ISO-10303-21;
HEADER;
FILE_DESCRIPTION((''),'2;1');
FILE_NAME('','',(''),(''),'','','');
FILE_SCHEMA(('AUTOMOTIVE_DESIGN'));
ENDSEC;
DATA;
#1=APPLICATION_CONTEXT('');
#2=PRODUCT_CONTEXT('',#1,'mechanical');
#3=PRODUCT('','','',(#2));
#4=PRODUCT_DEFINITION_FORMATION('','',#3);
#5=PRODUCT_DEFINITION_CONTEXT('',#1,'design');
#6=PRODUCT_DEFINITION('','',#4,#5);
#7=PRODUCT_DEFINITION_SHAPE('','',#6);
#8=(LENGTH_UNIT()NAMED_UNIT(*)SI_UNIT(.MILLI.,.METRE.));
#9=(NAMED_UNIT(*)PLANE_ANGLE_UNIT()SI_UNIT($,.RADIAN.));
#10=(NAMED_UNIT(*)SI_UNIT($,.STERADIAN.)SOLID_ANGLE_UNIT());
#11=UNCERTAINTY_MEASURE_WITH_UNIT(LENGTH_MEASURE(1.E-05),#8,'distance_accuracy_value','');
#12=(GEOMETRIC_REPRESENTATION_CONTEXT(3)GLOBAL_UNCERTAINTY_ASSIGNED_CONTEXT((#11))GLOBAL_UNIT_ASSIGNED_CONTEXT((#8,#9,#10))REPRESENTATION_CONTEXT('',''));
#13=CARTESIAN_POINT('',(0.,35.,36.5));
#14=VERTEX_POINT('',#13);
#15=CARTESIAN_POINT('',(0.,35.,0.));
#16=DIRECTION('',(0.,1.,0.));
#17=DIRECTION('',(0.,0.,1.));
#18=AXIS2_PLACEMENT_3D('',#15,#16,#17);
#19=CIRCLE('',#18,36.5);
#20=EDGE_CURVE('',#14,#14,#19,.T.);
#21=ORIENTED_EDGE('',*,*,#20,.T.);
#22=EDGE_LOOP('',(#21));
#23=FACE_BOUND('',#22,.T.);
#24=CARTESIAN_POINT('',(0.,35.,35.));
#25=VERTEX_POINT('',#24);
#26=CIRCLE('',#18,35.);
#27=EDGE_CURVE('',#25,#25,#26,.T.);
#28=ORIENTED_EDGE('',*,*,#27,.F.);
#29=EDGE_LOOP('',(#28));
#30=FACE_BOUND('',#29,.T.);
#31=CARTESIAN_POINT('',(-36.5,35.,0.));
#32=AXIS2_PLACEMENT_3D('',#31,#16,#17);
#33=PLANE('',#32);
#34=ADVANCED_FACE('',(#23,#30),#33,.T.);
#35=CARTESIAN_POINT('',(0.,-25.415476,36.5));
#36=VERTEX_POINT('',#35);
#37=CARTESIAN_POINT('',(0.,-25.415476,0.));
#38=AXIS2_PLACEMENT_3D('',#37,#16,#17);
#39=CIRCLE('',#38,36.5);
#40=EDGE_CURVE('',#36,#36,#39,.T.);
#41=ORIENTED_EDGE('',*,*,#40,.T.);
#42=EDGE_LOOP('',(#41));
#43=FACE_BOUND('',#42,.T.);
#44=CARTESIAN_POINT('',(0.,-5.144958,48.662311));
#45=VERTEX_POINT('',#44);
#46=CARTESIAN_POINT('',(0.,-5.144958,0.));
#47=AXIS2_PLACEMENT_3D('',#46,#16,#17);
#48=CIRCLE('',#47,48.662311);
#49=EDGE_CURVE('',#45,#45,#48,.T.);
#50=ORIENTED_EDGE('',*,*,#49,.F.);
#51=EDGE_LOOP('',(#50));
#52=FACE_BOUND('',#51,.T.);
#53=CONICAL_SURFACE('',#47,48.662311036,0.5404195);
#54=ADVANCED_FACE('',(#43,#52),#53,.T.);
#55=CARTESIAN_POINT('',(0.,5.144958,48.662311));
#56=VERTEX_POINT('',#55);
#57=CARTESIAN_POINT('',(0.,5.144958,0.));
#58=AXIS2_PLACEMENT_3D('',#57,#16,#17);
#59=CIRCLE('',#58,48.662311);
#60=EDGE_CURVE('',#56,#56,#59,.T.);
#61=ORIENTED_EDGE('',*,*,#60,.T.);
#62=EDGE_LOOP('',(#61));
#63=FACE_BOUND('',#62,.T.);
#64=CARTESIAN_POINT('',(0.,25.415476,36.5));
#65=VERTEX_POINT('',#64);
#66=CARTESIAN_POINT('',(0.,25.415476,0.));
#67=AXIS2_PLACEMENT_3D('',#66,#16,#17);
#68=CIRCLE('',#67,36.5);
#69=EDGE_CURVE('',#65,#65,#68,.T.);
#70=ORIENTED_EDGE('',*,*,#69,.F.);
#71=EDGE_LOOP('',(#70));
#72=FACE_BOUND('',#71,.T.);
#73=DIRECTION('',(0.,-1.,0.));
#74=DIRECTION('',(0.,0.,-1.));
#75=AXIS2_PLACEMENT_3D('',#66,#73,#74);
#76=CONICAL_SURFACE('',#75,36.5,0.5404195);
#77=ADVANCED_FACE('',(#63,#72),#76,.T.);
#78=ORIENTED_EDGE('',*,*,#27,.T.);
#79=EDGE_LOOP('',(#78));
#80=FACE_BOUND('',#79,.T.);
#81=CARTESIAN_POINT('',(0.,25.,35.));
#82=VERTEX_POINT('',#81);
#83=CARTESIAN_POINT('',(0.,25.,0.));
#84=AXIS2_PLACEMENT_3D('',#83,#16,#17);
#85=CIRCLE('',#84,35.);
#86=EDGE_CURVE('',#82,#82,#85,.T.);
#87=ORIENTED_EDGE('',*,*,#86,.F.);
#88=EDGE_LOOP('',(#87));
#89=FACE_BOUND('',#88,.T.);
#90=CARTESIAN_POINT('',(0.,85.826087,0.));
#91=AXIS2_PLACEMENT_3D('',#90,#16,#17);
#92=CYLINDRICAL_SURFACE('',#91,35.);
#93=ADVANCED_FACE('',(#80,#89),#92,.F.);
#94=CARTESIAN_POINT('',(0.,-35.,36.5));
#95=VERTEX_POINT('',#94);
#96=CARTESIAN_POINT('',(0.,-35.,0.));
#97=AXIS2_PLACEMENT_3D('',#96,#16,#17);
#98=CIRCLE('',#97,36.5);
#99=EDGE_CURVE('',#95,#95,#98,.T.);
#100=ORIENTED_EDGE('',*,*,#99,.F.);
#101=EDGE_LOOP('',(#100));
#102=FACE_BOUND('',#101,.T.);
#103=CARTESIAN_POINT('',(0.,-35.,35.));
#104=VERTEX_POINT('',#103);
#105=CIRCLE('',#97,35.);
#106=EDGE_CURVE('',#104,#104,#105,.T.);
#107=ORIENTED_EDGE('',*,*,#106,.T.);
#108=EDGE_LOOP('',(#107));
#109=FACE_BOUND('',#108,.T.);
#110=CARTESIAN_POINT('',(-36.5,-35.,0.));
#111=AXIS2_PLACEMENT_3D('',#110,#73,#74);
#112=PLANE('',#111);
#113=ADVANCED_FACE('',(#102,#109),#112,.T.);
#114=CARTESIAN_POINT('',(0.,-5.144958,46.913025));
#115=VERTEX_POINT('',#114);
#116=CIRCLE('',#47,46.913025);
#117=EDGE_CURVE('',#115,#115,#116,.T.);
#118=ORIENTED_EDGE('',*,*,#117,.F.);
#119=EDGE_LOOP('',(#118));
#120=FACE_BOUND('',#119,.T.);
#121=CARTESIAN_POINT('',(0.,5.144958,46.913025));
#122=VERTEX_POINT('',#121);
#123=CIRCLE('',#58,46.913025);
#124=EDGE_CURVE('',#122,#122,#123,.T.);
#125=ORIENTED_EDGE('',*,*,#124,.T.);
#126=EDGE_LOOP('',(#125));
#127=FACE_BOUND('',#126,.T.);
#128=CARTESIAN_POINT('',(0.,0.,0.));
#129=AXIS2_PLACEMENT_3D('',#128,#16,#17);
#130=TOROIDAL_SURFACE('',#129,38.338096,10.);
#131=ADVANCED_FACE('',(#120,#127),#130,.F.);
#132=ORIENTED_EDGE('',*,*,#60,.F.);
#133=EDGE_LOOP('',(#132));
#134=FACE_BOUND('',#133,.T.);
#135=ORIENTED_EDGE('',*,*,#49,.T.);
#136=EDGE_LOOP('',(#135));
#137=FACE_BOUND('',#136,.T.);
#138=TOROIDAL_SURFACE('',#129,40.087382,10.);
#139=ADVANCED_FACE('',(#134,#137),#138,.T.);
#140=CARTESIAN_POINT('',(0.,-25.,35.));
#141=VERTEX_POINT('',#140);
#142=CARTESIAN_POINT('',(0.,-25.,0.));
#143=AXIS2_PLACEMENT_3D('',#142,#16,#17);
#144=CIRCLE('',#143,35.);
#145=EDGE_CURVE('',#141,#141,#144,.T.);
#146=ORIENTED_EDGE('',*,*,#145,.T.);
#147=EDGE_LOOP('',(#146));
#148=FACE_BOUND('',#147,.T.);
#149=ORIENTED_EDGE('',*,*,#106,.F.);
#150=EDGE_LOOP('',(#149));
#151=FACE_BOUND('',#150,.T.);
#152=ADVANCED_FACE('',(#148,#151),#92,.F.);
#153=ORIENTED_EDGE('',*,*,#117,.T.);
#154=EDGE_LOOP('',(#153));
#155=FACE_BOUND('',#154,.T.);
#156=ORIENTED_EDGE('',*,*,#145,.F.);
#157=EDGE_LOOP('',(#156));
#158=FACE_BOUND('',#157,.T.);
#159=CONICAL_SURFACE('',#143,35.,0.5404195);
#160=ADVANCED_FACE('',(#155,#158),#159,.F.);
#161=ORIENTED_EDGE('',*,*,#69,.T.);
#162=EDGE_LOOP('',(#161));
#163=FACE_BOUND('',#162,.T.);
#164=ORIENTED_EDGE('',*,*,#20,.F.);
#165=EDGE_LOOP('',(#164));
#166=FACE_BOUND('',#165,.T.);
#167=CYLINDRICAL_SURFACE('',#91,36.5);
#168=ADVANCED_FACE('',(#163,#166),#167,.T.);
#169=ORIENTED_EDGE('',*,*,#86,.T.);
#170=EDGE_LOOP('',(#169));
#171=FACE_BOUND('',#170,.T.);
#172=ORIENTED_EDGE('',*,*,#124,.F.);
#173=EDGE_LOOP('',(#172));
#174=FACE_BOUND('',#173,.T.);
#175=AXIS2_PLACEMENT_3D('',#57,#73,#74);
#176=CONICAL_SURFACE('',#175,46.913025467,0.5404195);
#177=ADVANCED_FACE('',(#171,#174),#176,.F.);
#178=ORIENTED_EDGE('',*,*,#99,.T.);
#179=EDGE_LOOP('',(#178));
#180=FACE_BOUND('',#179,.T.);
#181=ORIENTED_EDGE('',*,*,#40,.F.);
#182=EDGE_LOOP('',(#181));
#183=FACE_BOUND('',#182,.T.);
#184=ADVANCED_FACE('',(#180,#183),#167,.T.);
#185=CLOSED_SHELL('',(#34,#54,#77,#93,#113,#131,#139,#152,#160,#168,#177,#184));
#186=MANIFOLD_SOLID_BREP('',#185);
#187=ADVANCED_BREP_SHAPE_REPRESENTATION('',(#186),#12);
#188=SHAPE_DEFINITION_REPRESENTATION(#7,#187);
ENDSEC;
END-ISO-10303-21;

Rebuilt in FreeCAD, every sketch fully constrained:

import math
import FreeCAD as App
import Part
import Sketcher
Q = App.Units.Quantity

doc = App.newDocument("Part")
body = doc.addObject("PartDesign::Body", "Body")

# Sketch on XY plane
sketch1 = body.newObject("Sketcher::SketchObject", "Sketch")
sketch1.AttachmentSupport = (doc.getObject("XY_Plane"), [""])
sketch1.MapMode = "FlatFace"
sketch1.addGeometry([
    Part.LineSegment(App.Vector(-35, 25, 0), App.Vector(-35, 35, 0)),  # 0
    Part.LineSegment(App.Vector(-35, 35, 0), App.Vector(-36.5, 35, 0)),  # 1
    Part.LineSegment(App.Vector(-36.5, 35, 0), App.Vector(-36.5, 25.4, 0)),  # 2
    Part.LineSegment(App.Vector(-36.5, 25.4, 0), App.Vector(-48.7, 5.1, 0)),  # 3
    Part.ArcOfCircle(Part.Circle(App.Vector(-40.1, 0, 0), App.Vector(0, 0, 1), 10), math.radians(149), math.radians(211)),  # 4
    Part.LineSegment(App.Vector(-48.7, -5.1, 0), App.Vector(-36.5, -25.4, 0)),  # 5
    Part.LineSegment(App.Vector(-36.5, -25.4, 0), App.Vector(-36.5, -35, 0)),  # 6
    Part.LineSegment(App.Vector(-36.5, -35, 0), App.Vector(-35, -35, 0)),  # 7
    Part.LineSegment(App.Vector(-35, -35, 0), App.Vector(-35, -25, 0)),  # 8
    Part.LineSegment(App.Vector(-35, -25, 0), App.Vector(-46.9, -5.1, 0)),  # 9
    Part.ArcOfCircle(Part.Circle(App.Vector(-38.3, 0, 0), App.Vector(0, 0, 1), 10), math.radians(149), math.radians(211)),  # 10
    Part.LineSegment(App.Vector(-46.9, 5.1, 0), App.Vector(-35, 25, 0)),  # 11
], False)
sketch1.addConstraint([
    Sketcher.Constraint("Coincident", 0, 2, 1, 1),
    Sketcher.Constraint("Coincident", 1, 2, 2, 1),
    Sketcher.Constraint("Coincident", 2, 2, 3, 1),
    Sketcher.Constraint("Tangent", 3, 2, 4, 1),
    Sketcher.Constraint("Tangent", 4, 2, 5, 1),
    Sketcher.Constraint("Coincident", 5, 2, 6, 1),
    Sketcher.Constraint("Coincident", 6, 2, 7, 1),
    Sketcher.Constraint("Coincident", 7, 2, 8, 1),
    Sketcher.Constraint("Coincident", 8, 2, 9, 1),
    Sketcher.Constraint("Tangent", 9, 2, 10, 2),
    Sketcher.Constraint("Tangent", 10, 1, 11, 1),
    Sketcher.Constraint("Coincident", 11, 2, 0, 1),
    Sketcher.Constraint("Vertical", 0),
    Sketcher.Constraint("Horizontal", 1),
    Sketcher.Constraint("Vertical", 2),
    Sketcher.Constraint("Vertical", 6),
    Sketcher.Constraint("Horizontal", 7),
    Sketcher.Constraint("Vertical", 8),
    Sketcher.Constraint("Equal", 4, 10),
    Sketcher.Constraint("Symmetric", 3, 2, 4, 2, -1),
    Sketcher.Constraint("Symmetric", 1, 2, 6, 2, -1),
    Sketcher.Constraint("Symmetric", 9, 2, 10, 1, -1),
    Sketcher.Constraint("Parallel", 5, 9),
    Sketcher.Constraint("Vertical", 0, 2, 7, 2),
    Sketcher.Constraint("Radius", 4, Q("10 mm")),
    Sketcher.Constraint("DistanceY", 0, 1, 0, 2, Q("10 mm")),
    Sketcher.Constraint("DistanceX", 1, 2, 1, 1, Q("1.5 mm")),
    Sketcher.Constraint("DistanceX", 0, 2, -1, 1, Q("35 mm")),
    Sketcher.Constraint("DistanceY", -1, 1, 0, 2, Q("35 mm")),
    Sketcher.Constraint("Distance", 9, Q("23.154759 mm")),
    Sketcher.Constraint("DistanceY", 2, 2, 2, 1, Q("9.584524 mm")),
])
revolution = body.newObject("PartDesign::Revolution", "Revolution")
revolution.Profile = sketch1
revolution.ReferenceAxis = (sketch1, ["V_Axis"])
revolution.Angle = 360

doc.recompute()
